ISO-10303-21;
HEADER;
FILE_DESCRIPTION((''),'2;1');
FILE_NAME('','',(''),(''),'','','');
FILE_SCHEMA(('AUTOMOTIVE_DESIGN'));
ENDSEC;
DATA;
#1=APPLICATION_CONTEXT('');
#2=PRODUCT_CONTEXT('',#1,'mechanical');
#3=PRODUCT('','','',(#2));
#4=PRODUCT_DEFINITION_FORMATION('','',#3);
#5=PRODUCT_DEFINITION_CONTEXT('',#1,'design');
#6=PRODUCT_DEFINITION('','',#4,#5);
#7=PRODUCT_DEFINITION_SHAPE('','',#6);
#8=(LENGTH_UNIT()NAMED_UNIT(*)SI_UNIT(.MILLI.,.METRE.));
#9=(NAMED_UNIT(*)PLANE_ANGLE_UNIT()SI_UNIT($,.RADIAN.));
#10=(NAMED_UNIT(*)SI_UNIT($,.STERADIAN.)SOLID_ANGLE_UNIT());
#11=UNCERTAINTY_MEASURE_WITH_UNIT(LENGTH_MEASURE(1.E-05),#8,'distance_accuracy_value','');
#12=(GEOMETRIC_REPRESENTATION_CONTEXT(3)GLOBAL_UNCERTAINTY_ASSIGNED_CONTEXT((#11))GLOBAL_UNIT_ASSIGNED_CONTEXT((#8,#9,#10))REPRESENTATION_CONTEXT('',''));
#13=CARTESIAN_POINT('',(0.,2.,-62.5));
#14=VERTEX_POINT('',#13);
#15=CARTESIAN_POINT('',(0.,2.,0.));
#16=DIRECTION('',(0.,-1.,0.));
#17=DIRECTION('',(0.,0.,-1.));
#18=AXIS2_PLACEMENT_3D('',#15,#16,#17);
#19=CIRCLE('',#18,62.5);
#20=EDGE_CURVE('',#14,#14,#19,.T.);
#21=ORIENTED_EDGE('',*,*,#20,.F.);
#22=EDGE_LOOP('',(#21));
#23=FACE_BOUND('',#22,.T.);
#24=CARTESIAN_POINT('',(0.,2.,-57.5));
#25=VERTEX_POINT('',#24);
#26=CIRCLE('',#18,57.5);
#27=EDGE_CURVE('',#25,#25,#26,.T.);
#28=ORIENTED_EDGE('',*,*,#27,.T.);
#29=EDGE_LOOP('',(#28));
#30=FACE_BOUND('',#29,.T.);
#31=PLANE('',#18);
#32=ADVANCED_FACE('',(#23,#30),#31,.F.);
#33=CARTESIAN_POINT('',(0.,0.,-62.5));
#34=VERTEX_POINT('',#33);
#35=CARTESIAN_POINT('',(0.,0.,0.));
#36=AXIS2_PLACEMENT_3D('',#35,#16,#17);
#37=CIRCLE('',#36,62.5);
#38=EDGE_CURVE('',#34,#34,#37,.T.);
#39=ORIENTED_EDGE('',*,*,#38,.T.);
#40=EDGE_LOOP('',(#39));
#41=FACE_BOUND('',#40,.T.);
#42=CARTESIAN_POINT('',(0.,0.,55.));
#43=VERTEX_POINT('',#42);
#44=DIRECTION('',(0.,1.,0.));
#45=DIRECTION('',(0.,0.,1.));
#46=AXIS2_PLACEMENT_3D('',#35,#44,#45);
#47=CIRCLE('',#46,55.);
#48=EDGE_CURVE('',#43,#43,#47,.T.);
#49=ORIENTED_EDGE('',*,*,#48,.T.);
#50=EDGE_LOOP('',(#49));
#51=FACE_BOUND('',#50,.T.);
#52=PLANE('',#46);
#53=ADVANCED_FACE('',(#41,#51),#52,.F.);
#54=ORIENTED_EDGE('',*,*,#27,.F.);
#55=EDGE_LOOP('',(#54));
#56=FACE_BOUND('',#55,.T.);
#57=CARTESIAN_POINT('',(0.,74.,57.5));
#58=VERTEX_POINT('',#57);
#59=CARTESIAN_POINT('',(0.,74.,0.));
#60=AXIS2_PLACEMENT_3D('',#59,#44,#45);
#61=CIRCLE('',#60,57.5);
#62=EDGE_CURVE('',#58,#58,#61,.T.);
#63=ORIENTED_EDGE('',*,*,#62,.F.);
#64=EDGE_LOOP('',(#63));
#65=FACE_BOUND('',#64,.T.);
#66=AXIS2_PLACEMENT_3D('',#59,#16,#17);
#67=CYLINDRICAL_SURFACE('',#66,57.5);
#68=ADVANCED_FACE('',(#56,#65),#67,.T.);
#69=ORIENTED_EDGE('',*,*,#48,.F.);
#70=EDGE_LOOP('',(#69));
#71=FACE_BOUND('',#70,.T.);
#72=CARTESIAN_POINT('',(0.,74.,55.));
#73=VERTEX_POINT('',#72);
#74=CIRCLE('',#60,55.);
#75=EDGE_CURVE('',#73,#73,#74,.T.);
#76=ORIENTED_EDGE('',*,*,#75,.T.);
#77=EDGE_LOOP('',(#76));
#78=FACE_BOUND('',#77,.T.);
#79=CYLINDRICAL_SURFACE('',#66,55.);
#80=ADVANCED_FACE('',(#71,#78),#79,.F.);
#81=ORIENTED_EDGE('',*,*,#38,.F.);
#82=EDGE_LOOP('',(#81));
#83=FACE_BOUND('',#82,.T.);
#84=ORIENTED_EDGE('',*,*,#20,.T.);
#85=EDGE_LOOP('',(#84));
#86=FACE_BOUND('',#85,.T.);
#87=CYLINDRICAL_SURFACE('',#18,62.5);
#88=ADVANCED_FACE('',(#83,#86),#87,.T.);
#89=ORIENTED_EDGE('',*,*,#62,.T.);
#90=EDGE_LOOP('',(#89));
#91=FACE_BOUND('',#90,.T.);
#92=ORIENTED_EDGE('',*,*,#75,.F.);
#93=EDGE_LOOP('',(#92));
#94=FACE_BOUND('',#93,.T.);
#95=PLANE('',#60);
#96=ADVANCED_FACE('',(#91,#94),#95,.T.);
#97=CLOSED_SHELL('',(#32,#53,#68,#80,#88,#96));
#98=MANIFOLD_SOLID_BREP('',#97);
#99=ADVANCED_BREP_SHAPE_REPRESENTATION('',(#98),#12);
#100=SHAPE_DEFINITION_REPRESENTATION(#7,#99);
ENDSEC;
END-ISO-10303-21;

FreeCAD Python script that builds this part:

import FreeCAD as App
import Part
import Sketcher

V = App.Vector
Q = App.Units.Quantity

doc = App.newDocument("Part")
body = doc.addObject("PartDesign::Body", "Body")

sketch1 = body.newObject("Sketcher::SketchObject", "Sketch")
sketch1.AttachmentSupport = (doc.getObject("XZ_Plane"), [""])
sketch1.MapMode = "FlatFace"
sketch1.addGeometry(Part.Circle(V(0, 0, 0), V(0, 0, 1), 58), False)
sketch1.addGeometry(Part.Circle(V(0, 0, 0), V(0, 0, 1), 55), False)
sketch1.addConstraint(Sketcher.Constraint("Coincident", 0, 3, -1, 1))
sketch1.addConstraint(Sketcher.Constraint("Coincident", 1, 3, -1, 1))
sketch1.addConstraint(Sketcher.Constraint("Diameter", 0, Q("115 mm")))
sketch1.addConstraint(Sketcher.Constraint("Diameter", 1, Q("110 mm")))
pad1 = body.newObject("PartDesign::Pad", "Pad")
pad1.Profile = sketch1
pad1.Length = 74
pad1.Reversed = True

sketch2 = body.newObject("Sketcher::SketchObject", "Sketch001")
sketch2.AttachmentSupport = (doc.getObject("XZ_Plane"), [""])
sketch2.MapMode = "FlatFace"
sketch2.addGeometry(Part.Circle(V(0, 0, 0), V(0, 0, 1), 62), False)
sketch2.addGeometry(Part.Circle(V(0, 0, 0), V(0, 0, 1), 58), False)
sketch2.addConstraint(Sketcher.Constraint("Coincident", 0, 3, -1, 1))
sketch2.addConstraint(Sketcher.Constraint("Coincident", 1, 3, -1, 1))
sketch2.addConstraint(Sketcher.Constraint("Diameter", 0, Q("125 mm")))
sketch2.addConstraint(Sketcher.Constraint("Diameter", 1, Q("115 mm")))
pad2 = body.newObject("PartDesign::Pad", "Pad001")
pad2.Profile = sketch2
pad2.Length = 2
pad2.Reversed = True

doc.recompute()
